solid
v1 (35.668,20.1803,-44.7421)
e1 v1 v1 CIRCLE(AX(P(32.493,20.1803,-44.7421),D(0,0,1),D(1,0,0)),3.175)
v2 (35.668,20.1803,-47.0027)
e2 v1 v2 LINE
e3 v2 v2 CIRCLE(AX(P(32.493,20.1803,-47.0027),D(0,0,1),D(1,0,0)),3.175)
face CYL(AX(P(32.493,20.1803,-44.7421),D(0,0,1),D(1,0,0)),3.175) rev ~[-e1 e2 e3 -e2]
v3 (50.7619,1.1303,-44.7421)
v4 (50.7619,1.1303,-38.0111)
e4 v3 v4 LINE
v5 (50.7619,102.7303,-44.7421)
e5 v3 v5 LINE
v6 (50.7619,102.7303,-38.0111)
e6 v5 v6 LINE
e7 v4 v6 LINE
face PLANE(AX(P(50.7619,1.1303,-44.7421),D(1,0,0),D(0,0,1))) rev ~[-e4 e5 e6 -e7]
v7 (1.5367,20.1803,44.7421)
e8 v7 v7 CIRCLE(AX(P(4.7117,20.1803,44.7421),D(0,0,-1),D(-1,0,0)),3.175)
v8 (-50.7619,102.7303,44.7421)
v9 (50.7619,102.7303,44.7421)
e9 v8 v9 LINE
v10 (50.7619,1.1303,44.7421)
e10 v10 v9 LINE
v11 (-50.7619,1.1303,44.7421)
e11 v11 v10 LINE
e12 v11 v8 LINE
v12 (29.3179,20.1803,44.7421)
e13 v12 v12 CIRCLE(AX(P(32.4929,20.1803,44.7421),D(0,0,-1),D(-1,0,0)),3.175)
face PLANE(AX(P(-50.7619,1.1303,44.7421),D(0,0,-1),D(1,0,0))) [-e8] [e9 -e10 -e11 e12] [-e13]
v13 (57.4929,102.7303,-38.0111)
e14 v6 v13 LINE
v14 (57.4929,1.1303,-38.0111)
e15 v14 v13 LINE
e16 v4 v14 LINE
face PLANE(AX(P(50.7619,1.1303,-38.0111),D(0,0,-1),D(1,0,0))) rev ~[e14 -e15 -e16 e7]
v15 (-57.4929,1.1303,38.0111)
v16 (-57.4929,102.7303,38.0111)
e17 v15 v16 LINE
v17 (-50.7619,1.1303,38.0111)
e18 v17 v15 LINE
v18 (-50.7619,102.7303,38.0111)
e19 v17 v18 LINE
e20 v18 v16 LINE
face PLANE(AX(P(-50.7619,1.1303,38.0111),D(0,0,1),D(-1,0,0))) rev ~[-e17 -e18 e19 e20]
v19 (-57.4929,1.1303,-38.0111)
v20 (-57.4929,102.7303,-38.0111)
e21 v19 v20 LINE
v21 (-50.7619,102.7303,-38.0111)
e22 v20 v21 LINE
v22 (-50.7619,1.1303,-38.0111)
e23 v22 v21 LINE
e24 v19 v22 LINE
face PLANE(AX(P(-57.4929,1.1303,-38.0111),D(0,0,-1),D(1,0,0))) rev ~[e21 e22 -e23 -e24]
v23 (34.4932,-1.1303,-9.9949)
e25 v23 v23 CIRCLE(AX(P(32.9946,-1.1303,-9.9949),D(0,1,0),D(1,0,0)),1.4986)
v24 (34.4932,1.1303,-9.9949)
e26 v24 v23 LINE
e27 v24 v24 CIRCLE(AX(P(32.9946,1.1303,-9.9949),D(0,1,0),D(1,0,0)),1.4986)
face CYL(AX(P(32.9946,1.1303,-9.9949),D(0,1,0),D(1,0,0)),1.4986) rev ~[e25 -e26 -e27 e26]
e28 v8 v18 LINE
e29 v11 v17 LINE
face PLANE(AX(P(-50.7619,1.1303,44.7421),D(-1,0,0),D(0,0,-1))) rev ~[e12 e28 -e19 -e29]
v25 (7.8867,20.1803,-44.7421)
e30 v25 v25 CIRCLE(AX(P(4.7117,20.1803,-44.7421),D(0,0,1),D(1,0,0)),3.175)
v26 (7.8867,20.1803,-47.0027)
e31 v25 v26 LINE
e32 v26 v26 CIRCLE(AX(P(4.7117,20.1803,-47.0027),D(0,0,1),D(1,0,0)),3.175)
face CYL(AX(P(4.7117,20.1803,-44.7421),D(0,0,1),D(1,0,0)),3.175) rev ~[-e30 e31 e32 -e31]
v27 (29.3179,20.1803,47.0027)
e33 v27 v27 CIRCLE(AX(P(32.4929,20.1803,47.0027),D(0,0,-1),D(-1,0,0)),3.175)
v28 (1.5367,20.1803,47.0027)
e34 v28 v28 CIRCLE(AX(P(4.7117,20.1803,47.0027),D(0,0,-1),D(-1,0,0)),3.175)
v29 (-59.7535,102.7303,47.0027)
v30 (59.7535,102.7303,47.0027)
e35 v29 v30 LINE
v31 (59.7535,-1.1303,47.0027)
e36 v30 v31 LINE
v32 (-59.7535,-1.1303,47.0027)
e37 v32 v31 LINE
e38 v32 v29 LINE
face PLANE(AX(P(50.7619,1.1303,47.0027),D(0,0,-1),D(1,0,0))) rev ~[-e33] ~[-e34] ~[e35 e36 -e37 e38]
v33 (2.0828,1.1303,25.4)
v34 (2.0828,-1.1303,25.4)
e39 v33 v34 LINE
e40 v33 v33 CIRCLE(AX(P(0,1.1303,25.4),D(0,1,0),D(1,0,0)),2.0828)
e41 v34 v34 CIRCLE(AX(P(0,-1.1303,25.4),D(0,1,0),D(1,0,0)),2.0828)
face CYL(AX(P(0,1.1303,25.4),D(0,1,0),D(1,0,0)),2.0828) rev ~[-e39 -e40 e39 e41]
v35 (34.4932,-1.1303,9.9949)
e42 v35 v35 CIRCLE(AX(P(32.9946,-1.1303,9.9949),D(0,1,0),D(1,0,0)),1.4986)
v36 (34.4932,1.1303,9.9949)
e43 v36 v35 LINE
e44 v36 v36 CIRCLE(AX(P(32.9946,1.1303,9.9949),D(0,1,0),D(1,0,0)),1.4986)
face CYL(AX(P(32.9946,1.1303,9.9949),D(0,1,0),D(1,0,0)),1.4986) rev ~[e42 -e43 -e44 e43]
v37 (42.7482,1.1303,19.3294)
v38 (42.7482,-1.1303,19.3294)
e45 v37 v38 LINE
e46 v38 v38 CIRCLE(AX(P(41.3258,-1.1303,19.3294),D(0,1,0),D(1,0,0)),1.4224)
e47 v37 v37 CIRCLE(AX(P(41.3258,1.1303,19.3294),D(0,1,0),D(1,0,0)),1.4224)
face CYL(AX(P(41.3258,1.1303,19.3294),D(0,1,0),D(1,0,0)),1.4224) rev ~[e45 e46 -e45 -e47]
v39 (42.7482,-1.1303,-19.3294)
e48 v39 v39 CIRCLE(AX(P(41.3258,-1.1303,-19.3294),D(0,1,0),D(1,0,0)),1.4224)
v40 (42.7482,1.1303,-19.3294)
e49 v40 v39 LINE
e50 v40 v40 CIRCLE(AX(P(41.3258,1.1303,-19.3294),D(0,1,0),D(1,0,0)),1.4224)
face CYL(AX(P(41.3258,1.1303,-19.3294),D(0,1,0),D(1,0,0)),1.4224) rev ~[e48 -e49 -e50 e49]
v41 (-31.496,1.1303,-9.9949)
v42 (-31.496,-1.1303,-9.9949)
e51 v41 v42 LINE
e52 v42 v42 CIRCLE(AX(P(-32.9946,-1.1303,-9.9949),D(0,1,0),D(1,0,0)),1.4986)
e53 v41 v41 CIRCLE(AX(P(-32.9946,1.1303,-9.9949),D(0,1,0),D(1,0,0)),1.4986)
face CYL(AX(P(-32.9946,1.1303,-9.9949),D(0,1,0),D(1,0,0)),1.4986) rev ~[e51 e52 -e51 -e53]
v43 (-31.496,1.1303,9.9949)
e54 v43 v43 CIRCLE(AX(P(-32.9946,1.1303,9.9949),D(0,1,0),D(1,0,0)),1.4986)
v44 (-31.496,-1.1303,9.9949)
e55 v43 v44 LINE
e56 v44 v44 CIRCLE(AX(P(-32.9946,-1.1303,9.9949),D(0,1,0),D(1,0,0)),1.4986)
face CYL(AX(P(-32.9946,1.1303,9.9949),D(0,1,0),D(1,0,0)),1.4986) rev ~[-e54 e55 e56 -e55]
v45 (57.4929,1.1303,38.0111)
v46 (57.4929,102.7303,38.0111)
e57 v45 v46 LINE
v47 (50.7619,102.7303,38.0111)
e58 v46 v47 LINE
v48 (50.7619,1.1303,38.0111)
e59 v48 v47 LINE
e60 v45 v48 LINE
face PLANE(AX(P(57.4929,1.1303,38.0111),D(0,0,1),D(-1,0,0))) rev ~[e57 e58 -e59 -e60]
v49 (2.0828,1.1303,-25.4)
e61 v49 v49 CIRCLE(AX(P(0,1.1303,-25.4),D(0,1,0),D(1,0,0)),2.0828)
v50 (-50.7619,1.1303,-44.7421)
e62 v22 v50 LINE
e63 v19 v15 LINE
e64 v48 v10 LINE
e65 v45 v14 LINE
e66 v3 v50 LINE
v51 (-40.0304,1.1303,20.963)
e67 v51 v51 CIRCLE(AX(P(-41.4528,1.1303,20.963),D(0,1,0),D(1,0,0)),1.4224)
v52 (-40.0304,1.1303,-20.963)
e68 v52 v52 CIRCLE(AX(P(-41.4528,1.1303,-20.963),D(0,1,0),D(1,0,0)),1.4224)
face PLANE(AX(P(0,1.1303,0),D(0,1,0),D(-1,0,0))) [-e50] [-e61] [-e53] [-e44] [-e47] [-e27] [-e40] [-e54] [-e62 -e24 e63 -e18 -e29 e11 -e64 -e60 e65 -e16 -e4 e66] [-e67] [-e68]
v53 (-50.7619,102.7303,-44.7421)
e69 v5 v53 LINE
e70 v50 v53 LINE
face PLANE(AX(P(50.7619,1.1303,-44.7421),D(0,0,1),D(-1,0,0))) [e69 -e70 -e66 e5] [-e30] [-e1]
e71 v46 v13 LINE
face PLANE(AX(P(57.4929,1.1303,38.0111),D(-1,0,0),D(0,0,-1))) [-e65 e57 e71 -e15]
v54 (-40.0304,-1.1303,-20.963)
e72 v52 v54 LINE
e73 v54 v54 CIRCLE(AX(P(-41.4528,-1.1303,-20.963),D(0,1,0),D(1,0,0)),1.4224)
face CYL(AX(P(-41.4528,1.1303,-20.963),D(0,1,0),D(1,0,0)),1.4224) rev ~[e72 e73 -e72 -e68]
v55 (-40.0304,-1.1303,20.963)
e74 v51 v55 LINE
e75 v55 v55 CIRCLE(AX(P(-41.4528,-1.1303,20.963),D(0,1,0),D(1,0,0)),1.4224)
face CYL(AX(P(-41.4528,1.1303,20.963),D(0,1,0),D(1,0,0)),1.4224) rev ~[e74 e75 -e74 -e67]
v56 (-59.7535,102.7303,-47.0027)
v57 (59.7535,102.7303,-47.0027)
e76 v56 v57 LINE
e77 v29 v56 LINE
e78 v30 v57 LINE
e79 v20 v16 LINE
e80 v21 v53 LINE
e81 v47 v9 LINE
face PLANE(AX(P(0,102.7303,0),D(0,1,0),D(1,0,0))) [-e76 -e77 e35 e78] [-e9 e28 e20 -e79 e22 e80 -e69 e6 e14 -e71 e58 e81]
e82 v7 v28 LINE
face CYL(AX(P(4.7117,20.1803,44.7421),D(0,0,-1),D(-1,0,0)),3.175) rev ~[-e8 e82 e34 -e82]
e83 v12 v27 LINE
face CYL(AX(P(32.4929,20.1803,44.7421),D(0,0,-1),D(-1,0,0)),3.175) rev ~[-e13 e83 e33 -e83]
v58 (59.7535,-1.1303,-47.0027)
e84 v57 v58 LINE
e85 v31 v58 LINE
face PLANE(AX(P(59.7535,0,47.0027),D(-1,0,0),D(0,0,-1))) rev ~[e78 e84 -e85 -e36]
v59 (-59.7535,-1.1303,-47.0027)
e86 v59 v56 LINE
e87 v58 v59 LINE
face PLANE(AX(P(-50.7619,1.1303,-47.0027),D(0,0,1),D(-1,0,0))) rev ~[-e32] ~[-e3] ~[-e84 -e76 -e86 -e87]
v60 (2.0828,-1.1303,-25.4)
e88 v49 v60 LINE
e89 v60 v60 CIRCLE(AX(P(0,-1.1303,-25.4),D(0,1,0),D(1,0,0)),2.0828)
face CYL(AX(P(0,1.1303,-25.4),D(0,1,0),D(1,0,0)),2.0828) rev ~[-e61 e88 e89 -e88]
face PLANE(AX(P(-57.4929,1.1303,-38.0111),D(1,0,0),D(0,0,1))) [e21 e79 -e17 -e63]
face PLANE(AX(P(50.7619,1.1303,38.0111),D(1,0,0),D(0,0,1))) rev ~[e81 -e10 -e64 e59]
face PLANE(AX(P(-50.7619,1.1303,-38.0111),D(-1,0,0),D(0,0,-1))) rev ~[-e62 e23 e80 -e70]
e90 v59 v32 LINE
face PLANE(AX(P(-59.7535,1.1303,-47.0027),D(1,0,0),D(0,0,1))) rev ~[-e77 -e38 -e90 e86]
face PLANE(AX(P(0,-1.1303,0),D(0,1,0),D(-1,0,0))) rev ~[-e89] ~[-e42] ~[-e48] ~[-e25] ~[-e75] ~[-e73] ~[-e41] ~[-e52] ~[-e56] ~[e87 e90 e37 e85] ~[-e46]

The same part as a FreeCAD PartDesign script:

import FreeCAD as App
import Part
import Sketcher

V = App.Vector
Q = App.Units.Quantity

doc = App.newDocument("Part")
params = doc.addObject("Spreadsheet::Sheet", "Params")
for row, (alias, value) in enumerate([
    ("sketch1_width", "4.705 in"),
    ("sketch1_height", "3.701 in"),
    ("pad1_length", "0.089 in"),
    ("sketch2_width", "4.705 in"),
    ("sketch2_width2", "0.265 in"),
    ("sketch2_height", "3.701 in"),
    ("pad2_length", "4 in"),
    ("sketch3_diameter", "0.164 in"),
    ("sketch4_diameter", "0.112 in"),
    ("sketch4_diameter2", "0.118 in"),
    ("sketch5_diameter", "0.25 in"),
    ("sketch6_diameter", "0.25 in"),
], start=1):
    params.set(f"A{row}", alias)
    params.set(f"B{row}", "=" + value)
    params.setAlias(f"B{row}", alias)

body = doc.addObject("PartDesign::Body", "Body")

# Sketch on XZ plane
sketch1 = doc.addObject("Sketcher::SketchObject", "Sketch")
body.addObject(sketch1)
sketch1.AttachmentSupport = (doc.XZ_Plane, [""])
sketch1.MapMode = "FlatFace"
sketch1.addGeometry(Part.LineSegment(V(60, 47, 0), V(60, -47, 0)), False)
sketch1.addGeometry(Part.LineSegment(V(60, -47, 0), V(-60, -47, 0)), False)
sketch1.addGeometry(Part.LineSegment(V(-60, -47, 0), V(-60, 47, 0)), False)
sketch1.addGeometry(Part.LineSegment(V(-60, 47, 0), V(60, 47, 0)), False)
sketch1.addConstraint(Sketcher.Constraint("Coincident", 0, 2, 1, 1))
sketch1.addConstraint(Sketcher.Constraint("Coincident", 1, 2, 2, 1))
sketch1.addConstraint(Sketcher.Constraint("Coincident", 2, 2, 3, 1))
sketch1.addConstraint(Sketcher.Constraint("Coincident", 3, 2, 0, 1))
sketch1.addConstraint(Sketcher.Constraint("Vertical", 0))
sketch1.addConstraint(Sketcher.Constraint("Horizontal", 1))
sketch1.addConstraint(Sketcher.Constraint("Vertical", 2))
sketch1.addConstraint(Sketcher.Constraint("Horizontal", 3))
sketch1.addConstraint(Sketcher.Constraint("Symmetric", 0, 2, 2, 2, -1, 1))
sketch1.addConstraint(Sketcher.Constraint("DistanceX", 1, 2, 1, 1, Q("4.705 in")))
sketch1.addConstraint(Sketcher.Constraint("DistanceY", 0, 2, 0, 1, Q("3.701 in")))
sketch1.setExpression("Constraints[9]", "Params.sketch1_width")
sketch1.setExpression("Constraints[10]", "Params.sketch1_height")
pad1 = doc.addObject("PartDesign::Pad", "Pad")
body.addObject(pad1)
pad1.Profile = sketch1
pad1.setExpression("Length", "Params.pad1_length")
pad1.Midplane = True

# Sketch on XZ plane
sketch2 = doc.addObject("Sketcher::SketchObject", "Sketch001")
body.addObject(sketch2)
sketch2.AttachmentSupport = (doc.XZ_Plane, [""])
sketch2.MapMode = "FlatFace"
sketch2.AttachmentOffset = App.Placement(V(0, 0, -0.0445 * 25.4), App.Rotation())
sketch2.addGeometry(Part.LineSegment(V(60, -47, 0), V(-60, -47, 0)), False)
sketch2.addGeometry(Part.LineSegment(V(-60, -47, 0), V(-60, 47, 0)), False)
sketch2.addGeometry(Part.LineSegment(V(-60, 47, 0), V(60, 47, 0)), False)
sketch2.addGeometry(Part.LineSegment(V(60, 47, 0), V(60, -47, 0)), False)
sketch2.addGeometry(Part.LineSegment(V(51, 45, 0), V(-51, 45, 0)), False)
sketch2.addGeometry(Part.LineSegment(V(-51, 45, 0), V(-51, 38, 0)), False)
sketch2.addGeometry(Part.LineSegment(V(-51, 38, 0), V(-57, 38, 0)), False)
sketch2.addGeometry(Part.LineSegment(V(-57, 38, 0), V(-57, -38, 0)), False)
sketch2.addGeometry(Part.LineSegment(V(-57, -38, 0), V(-51, -38, 0)), False)
sketch2.addGeometry(Part.LineSegment(V(-51, -38, 0), V(-51, -45, 0)), False)
sketch2.addGeometry(Part.LineSegment(V(-51, -45, 0), V(51, -45, 0)), False)
sketch2.addGeometry(Part.LineSegment(V(51, -45, 0), V(51, -38, 0)), False)
sketch2.addGeometry(Part.LineSegment(V(51, -38, 0), V(57, -38, 0)), False)
sketch2.addGeometry(Part.LineSegment(V(57, -38, 0), V(57, 38, 0)), False)
sketch2.addGeometry(Part.LineSegment(V(57, 38, 0), V(51, 38, 0)), False)
sketch2.addGeometry(Part.LineSegment(V(51, 38, 0), V(51, 45, 0)), False)
sketch2.addConstraint(Sketcher.Constraint("Coincident", 0, 2, 1, 1))
sketch2.addConstraint(Sketcher.Constraint("Coincident", 1, 2, 2, 1))
sketch2.addConstraint(Sketcher.Constraint("Coincident", 2, 2, 3, 1))
sketch2.addConstraint(Sketcher.Constraint("Coincident", 3, 2, 0, 1))
sketch2.addConstraint(Sketcher.Constraint("Coincident", 4, 2, 5, 1))
sketch2.addConstraint(Sketcher.Constraint("Coincident", 5, 2, 6, 1))
sketch2.addConstraint(Sketcher.Constraint("Coincident", 6, 2, 7, 1))
sketch2.addConstraint(Sketcher.Constraint("Coincident", 7, 2, 8, 1))
sketch2.addConstraint(Sketcher.Constraint("Coincident", 8, 2, 9, 1))
sketch2.addConstraint(Sketcher.Constraint("Coincident", 9, 2, 10, 1))
sketch2.addConstraint(Sketcher.Constraint("Coincident", 10, 2, 11, 1))
sketch2.addConstraint(Sketcher.Constraint("Coincident", 11, 2, 12, 1))
sketch2.addConstraint(Sketcher.Constraint("Coincident", 12, 2, 13, 1))
sketch2.addConstraint(Sketcher.Constraint("Coincident", 13, 2, 14, 1))
sketch2.addConstraint(Sketcher.Constraint("Coincident", 14, 2, 15, 1))
sketch2.addConstraint(Sketcher.Constraint("Coincident", 15, 2, 4, 1))
sketch2.addConstraint(Sketcher.Constraint("Horizontal", 0))
sketch2.addConstraint(Sketcher.Constraint("Vertical", 1))
sketch2.addConstraint(Sketcher.Constraint("Horizontal", 2))
sketch2.addConstraint(Sketcher.Constraint("Vertical", 3))
sketch2.addConstraint(Sketcher.Constraint("Horizontal", 4))
sketch2.addConstraint(Sketcher.Constraint("Vertical", 5))
sketch2.addConstraint(Sketcher.Constraint("Horizontal", 6))
sketch2.addConstraint(Sketcher.Constraint("Vertical", 7))
sketch2.addConstraint(Sketcher.Constraint("Horizontal", 8))
sketch2.addConstraint(Sketcher.Constraint("Vertical", 9))
sketch2.addConstraint(Sketcher.Constraint("Horizontal", 10))
sketch2.addConstraint(Sketcher.Constraint("Vertical", 11))
sketch2.addConstraint(Sketcher.Constraint("Horizontal", 12))
sketch2.addConstraint(Sketcher.Constraint("Vertical", 13))
sketch2.addConstraint(Sketcher.Constraint("Horizontal", 14))
sketch2.addConstraint(Sketcher.Constraint("Vertical", 15))
sketch2.addConstraint(Sketcher.Constraint("Symmetric", 0, 2, 2, 2, -1, 1))
sketch2.addConstraint(Sketcher.Constraint("Symmetric", 4, 2, 10, 2, -1, 1))
sketch2.addConstraint(Sketcher.Constraint("Symmetric", 6, 2, 12, 2, -1, 1))
sketch2.addConstraint(Sketcher.Constraint("Symmetric", 8, 2, 14, 2, -1, 1))
sketch2.addConstraint(Sketcher.Constraint("Symmetric", 8, 2, 11, 2, -2))
sketch2.addConstraint(Sketcher.Constraint("Equal", 14, 5))
sketch2.addConstraint(Sketcher.Constraint("DistanceX", 1, 2, 4, 2, Q("0.354 in")))
sketch2.addConstraint(Sketcher.Constraint("DistanceY", 5, 2, 1, 2, Q("0.354 in")))
sketch2.addConstraint(Sketcher.Constraint("DistanceX", 0, 2, 0, 1, Q("4.705 in")))
sketch2.addConstraint(Sketcher.Constraint("DistanceX", 6, 2, 6, 1, Q("0.265 in")))
sketch2.addConstraint(Sketcher.Constraint("DistanceY", 1, 1, 1, 2, Q("3.701 in")))
sketch2.setExpression("Constraints[40]", "Params.sketch2_width")
sketch2.setExpression("Constraints[41]", "Params.sketch2_width2")
sketch2.setExpression("Constraints[42]", "Params.sketch2_height")
pad2 = doc.addObject("PartDesign::Pad", "Pad001")
body.addObject(pad2)
pad2.Profile = sketch2
pad2.setExpression("Length", "Params.pad2_length")
pad2.Reversed = True

# Sketch on XZ plane
sketch3 = doc.addObject("Sketcher::SketchObject", "Sketch002")
body.addObject(sketch3)
sketch3.AttachmentSupport = (doc.XZ_Plane, [""])
sketch3.MapMode = "FlatFace"
sketch3.AttachmentOffset = App.Placement(V(0, 0, -0.0445 * 25.4), App.Rotation())
sketch3.addGeometry(Part.Circle(V(0, 25.4, 0), V(0, 0, 1), 2.1), False)
sketch3.addGeometry(Part.Circle(V(0, -25.4, 0), V(0, 0, 1), 2.1), False)
sketch3.addConstraint(Sketcher.Constraint("Equal", 0, 1))
sketch3.addConstraint(Sketcher.Constraint("Symmetric", 0, 3, 1, 3, -1, 1))
sketch3.addConstraint(Sketcher.Constraint("PointOnObject", 0, 3, -2))
sketch3.addConstraint(Sketcher.Constraint("Diameter", 0, Q("0.164 in")))
sketch3.addConstraint(Sketcher.Constraint("DistanceY", -1, 1, 0, 3, Q("1 in")))
sketch3.setExpression("Constraints[3]", "Params.sketch3_diameter")
pocket1 = doc.addObject("PartDesign::Pocket", "Pocket")
body.addObject(pocket1)
pocket1.Profile = sketch3
pocket1.Type = "ThroughAll"
pocket1.Reversed = True

# Sketch on XZ plane
sketch4 = doc.addObject("Sketcher::SketchObject", "Sketch003")
body.addObject(sketch4)
sketch4.AttachmentSupport = (doc.XZ_Plane, [""])
sketch4.MapMode = "FlatFace"
sketch4.AttachmentOffset = App.Placement(V(0, 0, -0.0445 * 25.4), App.Rotation())
sketch4.addGeometry(Part.Circle(V(41.3, 19.3, 0), V(0, 0, 1), 1.4), False)
sketch4.addGeometry(Part.Circle(V(41.3, -19.3, 0), V(0, 0, 1), 1.4), False)
sketch4.addGeometry(Part.Circle(V(-41.5, -21, 0), V(0, 0, 1), 1.4), False)
sketch4.addGeometry(Part.Circle(V(-41.5, 21, 0), V(0, 0, 1), 1.4), False)
sketch4.addGeometry(Part.Circle(V(-33, 10, 0), V(0, 0, 1), 1.5), False)
sketch4.addGeometry(Part.Circle(V(-33, -10, 0), V(0, 0, 1), 1.5), False)
sketch4.addGeometry(Part.Circle(V(33, -10, 0), V(0, 0, 1), 1.5), False)
sketch4.addGeometry(Part.Circle(V(33, 10, 0), V(0, 0, 1), 1.5), False)
sketch4.addConstraint(Sketcher.Constraint("Equal", 0, 1))
sketch4.addConstraint(Sketcher.Constraint("Equal", 1, 2))
sketch4.addConstraint(Sketcher.Constraint("Equal", 2, 3))
sketch4.addConstraint(Sketcher.Constraint("Equal", 4, 5))
sketch4.addConstraint(Sketcher.Constraint("Equal", 5, 6))
sketch4.addConstraint(Sketcher.Constraint("Equal", 6, 7))
sketch4.addConstraint(Sketcher.Constraint("Symmetric", 4, 3, 6, 3, -1, 1))
sketch4.addConstraint(Sketcher.Constraint("Symmetric", 5, 3, 7, 3, -1, 1))
sketch4.addConstraint(Sketcher.Constraint("Symmetric", 5, 3, 6, 3, -2))
sketch4.addConstraint(Sketcher.Constraint("Symmetric", 0, 3, 1, 3, -1))
sketch4.addConstraint(Sketcher.Constraint("Symmetric", 2, 3, 3, 3, -1))
sketch4.addConstraint(Sketcher.Constraint("Diameter", 0, Q("0.112 in")))
sketch4.addConstraint(Sketcher.Constraint("Diameter", 4, Q("0.118 in")))
sketch4.addConstraint(Sketcher.Constraint("DistanceY", 5, 3, 4, 3, Q("0.787 in")))
sketch4.addConstraint(Sketcher.Constraint("DistanceX", 5, 3, 6, 3, Q("2.598 in")))
sketch4.addConstraint(Sketcher.Constraint("DistanceX", -1, 1, 0, 3, Q("1.627 in")))
sketch4.addConstraint(Sketcher.Constraint("DistanceY", -1, 1, 0, 3, Q("0.761 in")))
sketch4.addConstraint(Sketcher.Constraint("DistanceX", 2, 3, -1, 1, Q("1.632 in")))
sketch4.addConstraint(Sketcher.Constraint("DistanceY", 2, 3, -1, 1, 20.963))
sketch4.setExpression("Constraints[11]", "Params.sketch4_diameter")
sketch4.setExpression("Constraints[12]", "Params.sketch4_diameter2")
pocket2 = doc.addObject("PartDesign::Pocket", "Pocket001")
body.addObject(pocket2)
pocket2.Profile = sketch4
pocket2.Type = "ThroughAll"
pocket2.Reversed = True

# Sketch on XY plane
sketch5 = doc.addObject("Sketcher::SketchObject", "Sketch004")
body.addObject(sketch5)
sketch5.AttachmentSupport = (doc.XY_Plane, [""])
sketch5.MapMode = "FlatFace"
sketch5.AttachmentOffset = App.Placement(V(0, 0, -1.7615 * 25.4), App.Rotation())
sketch5.addGeometry(Part.Circle(V(4.7, 20.2, 0), V(0, 0, 1), 3.2), False)
sketch5.addGeometry(Part.Circle(V(32.5, 20.2, 0), V(0, 0, 1), 3.2), False)
sketch5.addConstraint(Sketcher.Constraint("Equal", 0, 1))
sketch5.addConstraint(Sketcher.Constraint("Horizontal", 0, 3, 1, 3))
sketch5.addConstraint(Sketcher.Constraint("Diameter", 0, Q("0.25 in")))
sketch5.addConstraint(Sketcher.Constraint("DistanceX", 0, 3, 1, 3, Q("1.093752 in")))
sketch5.addConstraint(Sketcher.Constraint("DistanceX", -1, 1, 0, 3, Q("0.1855 in")))
sketch5.addConstraint(Sketcher.Constraint("DistanceY", -1, 1, 0, 3, Q("0.7945 in")))
sketch5.setExpression("Constraints[2]", "Params.sketch5_diameter")
pocket3 = doc.addObject("PartDesign::Pocket", "Pocket002")
body.addObject(pocket3)
pocket3.Profile = sketch5
pocket3.Type = "ThroughAll"

# Sketch on XY plane
sketch6 = doc.addObject("Sketcher::SketchObject", "Sketch005")
body.addObject(sketch6)
sketch6.AttachmentSupport = (doc.XY_Plane, [""])
sketch6.MapMode = "FlatFace"
sketch6.AttachmentOffset = App.Placement(V(0, 0, 1.7615 * 25.4), App.Rotation())
sketch6.addGeometry(Part.Circle(V(32.5, 20.2, 0), V(0, 0, 1), 3.2), False)
sketch6.addGeometry(Part.Circle(V(4.7, 20.2, 0), V(0, 0, 1), 3.2), False)
sketch6.addConstraint(Sketcher.Constraint("Equal", 0, 1))
sketch6.addConstraint(Sketcher.Constraint("Horizontal", 0, 3, 1, 3))
sketch6.addConstraint(Sketcher.Constraint("Diameter", 0, Q("0.25 in")))
sketch6.addConstraint(Sketcher.Constraint("DistanceX", 1, 3, 0, 3, Q("1.093748 in")))
sketch6.addConstraint(Sketcher.Constraint("DistanceY", -1, 1, 0, 3, Q("0.7945 in")))
sketch6.addConstraint(Sketcher.Constraint("DistanceX", -1, 1, 1, 3, Q("0.1855 in")))
sketch6.setExpression("Constraints[2]", "Params.sketch6_diameter")
pocket4 = doc.addObject("PartDesign::Pocket", "Pocket003")
body.addObject(pocket4)
pocket4.Profile = sketch6
pocket4.Type = "ThroughAll"
pocket4.Reversed = True

doc.recompute()
